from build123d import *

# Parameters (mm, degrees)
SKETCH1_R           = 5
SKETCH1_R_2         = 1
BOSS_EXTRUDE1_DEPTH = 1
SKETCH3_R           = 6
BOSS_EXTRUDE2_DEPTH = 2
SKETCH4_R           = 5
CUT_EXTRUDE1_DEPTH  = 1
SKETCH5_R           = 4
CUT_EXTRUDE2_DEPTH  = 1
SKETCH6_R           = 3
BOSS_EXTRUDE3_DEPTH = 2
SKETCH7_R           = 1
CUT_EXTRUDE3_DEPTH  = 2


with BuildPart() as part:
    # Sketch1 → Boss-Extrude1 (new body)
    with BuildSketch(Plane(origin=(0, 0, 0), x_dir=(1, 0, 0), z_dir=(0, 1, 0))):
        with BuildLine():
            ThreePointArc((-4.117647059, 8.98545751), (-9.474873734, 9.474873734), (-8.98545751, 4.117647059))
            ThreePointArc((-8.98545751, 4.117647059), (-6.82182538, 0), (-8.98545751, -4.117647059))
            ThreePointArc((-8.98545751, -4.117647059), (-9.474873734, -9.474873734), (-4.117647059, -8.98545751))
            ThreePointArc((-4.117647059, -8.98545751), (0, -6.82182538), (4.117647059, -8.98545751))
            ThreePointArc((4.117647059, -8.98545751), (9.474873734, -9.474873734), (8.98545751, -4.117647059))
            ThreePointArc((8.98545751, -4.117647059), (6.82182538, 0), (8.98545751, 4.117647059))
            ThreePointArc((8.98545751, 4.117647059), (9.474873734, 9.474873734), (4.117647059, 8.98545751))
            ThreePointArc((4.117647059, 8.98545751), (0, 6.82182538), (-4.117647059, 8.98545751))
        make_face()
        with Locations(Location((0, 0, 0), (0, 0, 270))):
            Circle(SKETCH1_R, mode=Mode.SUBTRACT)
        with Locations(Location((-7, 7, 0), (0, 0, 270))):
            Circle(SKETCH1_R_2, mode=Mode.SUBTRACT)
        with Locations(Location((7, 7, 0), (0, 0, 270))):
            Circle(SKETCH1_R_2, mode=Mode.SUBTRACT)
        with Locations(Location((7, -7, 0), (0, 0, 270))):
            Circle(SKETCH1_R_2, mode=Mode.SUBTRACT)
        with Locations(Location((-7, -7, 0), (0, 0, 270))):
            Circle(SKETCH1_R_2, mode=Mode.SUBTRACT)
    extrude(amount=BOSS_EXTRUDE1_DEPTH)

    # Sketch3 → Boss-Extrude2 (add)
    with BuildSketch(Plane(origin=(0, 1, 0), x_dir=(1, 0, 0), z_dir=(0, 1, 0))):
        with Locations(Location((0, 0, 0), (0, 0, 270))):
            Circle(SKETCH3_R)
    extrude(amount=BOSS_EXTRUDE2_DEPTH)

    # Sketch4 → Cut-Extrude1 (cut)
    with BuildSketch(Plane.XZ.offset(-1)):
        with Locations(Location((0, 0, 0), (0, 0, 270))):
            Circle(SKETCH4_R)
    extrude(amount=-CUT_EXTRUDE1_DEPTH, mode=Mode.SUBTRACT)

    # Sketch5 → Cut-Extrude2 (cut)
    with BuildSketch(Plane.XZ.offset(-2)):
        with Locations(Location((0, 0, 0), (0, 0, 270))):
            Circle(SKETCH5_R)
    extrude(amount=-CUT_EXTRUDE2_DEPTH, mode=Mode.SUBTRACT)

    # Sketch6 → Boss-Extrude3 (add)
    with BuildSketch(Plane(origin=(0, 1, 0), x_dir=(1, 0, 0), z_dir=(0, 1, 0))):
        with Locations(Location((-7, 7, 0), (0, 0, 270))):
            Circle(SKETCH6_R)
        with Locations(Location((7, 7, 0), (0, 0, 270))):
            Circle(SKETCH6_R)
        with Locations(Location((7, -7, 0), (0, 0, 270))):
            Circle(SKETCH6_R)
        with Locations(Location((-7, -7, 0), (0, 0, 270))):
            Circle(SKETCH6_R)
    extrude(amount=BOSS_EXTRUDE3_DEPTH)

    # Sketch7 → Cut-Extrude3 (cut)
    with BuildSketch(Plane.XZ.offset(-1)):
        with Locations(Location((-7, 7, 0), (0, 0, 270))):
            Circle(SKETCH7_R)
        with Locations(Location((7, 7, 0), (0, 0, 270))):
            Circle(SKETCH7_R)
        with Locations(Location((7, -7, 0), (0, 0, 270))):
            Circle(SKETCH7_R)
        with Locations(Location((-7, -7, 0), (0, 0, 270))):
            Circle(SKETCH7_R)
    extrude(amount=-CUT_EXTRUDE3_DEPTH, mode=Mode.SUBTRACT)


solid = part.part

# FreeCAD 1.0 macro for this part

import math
import FreeCAD as App
import Part
import Sketcher

V = App.Vector

doc = App.newDocument("Part")
body = doc.addObject("PartDesign::Body", "Body")

sketch1 = body.newObject("Sketcher::SketchObject", "Sketch")
sketch1.AttachmentSupport = (doc.getObject("XZ_Plane"), [""])
sketch1.MapMode = "FlatFace"
sketch1.addGeometry([
    Part.ArcOfCircle(Part.Circle(V(-7, -7, 0), V(0, 0, 1), 3.5), math.radians(124.560322), math.radians(325.439678)),
    Part.ArcOfCircle(Part.Circle(V(-11.821825, 0, 0), V(0, 0, 1), 5), math.radians(-55.439678), math.radians(55.439678)),
    Part.ArcOfCircle(Part.Circle(V(-7, 7, 0), V(0, 0, 1), 3.5), math.radians(34.560322), math.radians(235.439678)),
    Part.ArcOfCircle(Part.Circle(V(0, 11.821825, 0), V(0, 0, 1), 5), math.radians(-145.439678), math.radians(-34.560322)),
    Part.ArcOfCircle(Part.Circle(V(7, 7, 0), V(0, 0, 1), 3.5), math.radians(-55.439678), math.radians(145.439678)),
    Part.ArcOfCircle(Part.Circle(V(11.821825, 0, 0), V(0, 0, 1), 5), math.radians(124.560322), math.radians(235.439678)),
    Part.ArcOfCircle(Part.Circle(V(7, -7, 0), V(0, 0, 1), 3.5), math.radians(-145.439678), math.radians(55.439678)),
    Part.ArcOfCircle(Part.Circle(V(0, -11.821825, 0), V(0, 0, 1), 5), math.radians(34.560322), math.radians(145.439678)),
    Part.Circle(V(-7, 7, 0), V(0, 0, 1), 1),
    Part.Circle(V(7, 7, 0), V(0, 0, 1), 1),
    Part.Circle(V(0, 0, 0), V(0, 0, 1), 5),
    Part.Circle(V(-7, -7, 0), V(0, 0, 1), 1),
    Part.Circle(V(7, -7, 0), V(0, 0, 1), 1),
], False)
sketch1.addConstraint([
    Sketcher.Constraint("Tangent", 0, 1, 1, 1),
    Sketcher.Constraint("Tangent", 1, 2, 2, 2),
    Sketcher.Constraint("Tangent", 2, 1, 3, 1),
    Sketcher.Constraint("Tangent", 3, 2, 4, 2),
    Sketcher.Constraint("Tangent", 4, 1, 5, 1),
    Sketcher.Constraint("Tangent", 5, 2, 6, 2),
    Sketcher.Constraint("Tangent", 6, 1, 7, 1),
    Sketcher.Constraint("Tangent", 7, 2, 0, 2),
    Sketcher.Constraint("Coincident", 10, 3, -1, 1),
    Sketcher.Constraint("Coincident", 8, 3, 2, 3),
    Sketcher.Constraint("Coincident", 9, 3, 4, 3),
    Sketcher.Constraint("Coincident", 11, 3, 0, 3),
    Sketcher.Constraint("Coincident", 12, 3, 6, 3),
    Sketcher.Constraint("Equal", 0, 2),
    Sketcher.Constraint("Equal", 1, 3),
    Sketcher.Constraint("Equal", 2, 4),
    Sketcher.Constraint("Equal", 3, 5),
    Sketcher.Constraint("Equal", 4, 6),
    Sketcher.Constraint("Equal", 5, 7),
    Sketcher.Constraint("Equal", 8, 9),
    Sketcher.Constraint("Equal", 7, 10),
    Sketcher.Constraint("Equal", 9, 11),
    Sketcher.Constraint("Equal", 11, 12),
    Sketcher.Constraint("Symmetric", 0, 3, 4, 3, -1, 1),
    Sketcher.Constraint("Symmetric", 2, 3, 6, 3, -1, 1),
    Sketcher.Constraint("Symmetric", 2, 3, 4, 3, -2),
    Sketcher.Constraint("Diameter", 8, 2.0),
    Sketcher.Constraint("Diameter", 10, 10.0),
    Sketcher.Constraint("Radius", 0, 3.5),
    Sketcher.Constraint("DistanceX", 0, 3, -1, 1, 7.0),
    Sketcher.Constraint("DistanceY", 0, 3, -1, 1, 7.0),
])
pad1 = body.newObject("PartDesign::Pad", "Pad")
pad1.Profile = sketch1
pad1.Length = 1
pad1.Reversed = True

sketch2 = body.newObject("Sketcher::SketchObject", "Sketch001")
sketch2.AttachmentSupport = (doc.getObject("XZ_Plane"), [""])
sketch2.MapMode = "FlatFace"
sketch2.AttachmentOffset = App.Placement(V(0, 0, -1), App.Rotation())
sketch2.addGeometry(Part.Circle(V(0, 0, 0), V(0, 0, 1), 6), False)
sketch2.addConstraint([
    Sketcher.Constraint("Coincident", 0, 3, -1, 1),
    Sketcher.Constraint("Diameter", 0, 12.0),
])
pad2 = body.newObject("PartDesign::Pad", "Pad001")
pad2.Profile = sketch2
pad2.Length = 2
pad2.Reversed = True

sketch3 = body.newObject("Sketcher::SketchObject", "Sketch002")
sketch3.AttachmentSupport = (doc.getObject("XZ_Plane"), [""])
sketch3.MapMode = "FlatFace"
sketch3.AttachmentOffset = App.Placement(V(0, 0, -1), App.Rotation())
sketch3.addGeometry(Part.Circle(V(0, 0, 0), V(0, 0, 1), 5), False)
sketch3.addConstraint([
    Sketcher.Constraint("Coincident", 0, 3, -1, 1),
    Sketcher.Constraint("Diameter", 0, 10.0),
])
pocket1 = body.newObject("PartDesign::Pocket", "Pocket")
pocket1.Profile = sketch3
pocket1.Length = 1

sketch4 = body.newObject("Sketcher::SketchObject", "Sketch003")
sketch4.AttachmentSupport = (doc.getObject("XZ_Plane"), [""])
sketch4.MapMode = "FlatFace"
sketch4.AttachmentOffset = App.Placement(V(0, 0, -2), App.Rotation())
sketch4.addGeometry(Part.Circle(V(0, 0, 0), V(0, 0, 1), 4), False)
sketch4.addConstraint([
    Sketcher.Constraint("Coincident", 0, 3, -1, 1),
    Sketcher.Constraint("Diameter", 0, 8.0),
])
pocket2 = body.newObject("PartDesign::Pocket", "Pocket001")
pocket2.Profile = sketch4
pocket2.Length = 1

sketch5 = body.newObject("Sketcher::SketchObject", "Sketch004")
sketch5.AttachmentSupport = (doc.getObject("XZ_Plane"), [""])
sketch5.MapMode = "FlatFace"
sketch5.AttachmentOffset = App.Placement(V(0, 0, -1), App.Rotation())
sketch5.addGeometry([
    Part.Circle(V(-7, -7, 0), V(0, 0, 1), 3),
    Part.Circle(V(7, -7, 0), V(0, 0, 1), 3),
    Part.Circle(V(7, 7, 0), V(0, 0, 1), 3),
    Part.Circle(V(-7, 7, 0), V(0, 0, 1), 3),
], False)
sketch5.addConstraint([
    Sketcher.Constraint("Equal", 0, 1),
    Sketcher.Constraint("Equal", 1, 2),
    Sketcher.Constraint("Equal", 2, 3),
    Sketcher.Constraint("Symmetric", 0, 3, 2, 3, -1, 1),
    Sketcher.Constraint("Symmetric", 1, 3, 3, 3, -1, 1),
    Sketcher.Constraint("Symmetric", 0, 3, 1, 3, -2),
    Sketcher.Constraint("Diameter", 0, 6.0),
    Sketcher.Constraint("DistanceX", 0, 3, -1, 1, 7.0),
    Sketcher.Constraint("DistanceY", 0, 3, -1, 1, 7.0),
])
pad3 = body.newObject("PartDesign::Pad", "Pad002")
pad3.Profile = sketch5
pad3.Length = 2
pad3.Reversed = True

sketch6 = body.newObject("Sketcher::SketchObject", "Sketch005")
sketch6.AttachmentSupport = (doc.getObject("XZ_Plane"), [""])
sketch6.MapMode = "FlatFace"
sketch6.AttachmentOffset = App.Placement(V(0, 0, -1), App.Rotation())
sketch6.addGeometry([
    Part.Circle(V(-7, 7, 0), V(0, 0, 1), 1),
    Part.Circle(V(7, 7, 0), V(0, 0, 1), 1),
    Part.Circle(V(7, -7, 0), V(0, 0, 1), 1),
    Part.Circle(V(-7, -7, 0), V(0, 0, 1), 1),
], False)
sketch6.addConstraint([
    Sketcher.Constraint("Equal", 0, 1),
    Sketcher.Constraint("Equal", 1, 2),
    Sketcher.Constraint("Equal", 2, 3),
    Sketcher.Constraint("Symmetric", 0, 3, 2, 3, -1, 1),
    Sketcher.Constraint("Symmetric", 1, 3, 3, 3, -1, 1),
    Sketcher.Constraint("Symmetric", 0, 3, 1, 3, -2),
    Sketcher.Constraint("Diameter", 0, 2.0),
    Sketcher.Constraint("DistanceX", 0, 3, -1, 1, 7.0),
    Sketcher.Constraint("DistanceY", -1, 1, 0, 3, 7.0),
])
pocket3 = body.newObject("PartDesign::Pocket", "Pocket002")
pocket3.Profile = sketch6
pocket3.Length = 2

doc.recompute()
